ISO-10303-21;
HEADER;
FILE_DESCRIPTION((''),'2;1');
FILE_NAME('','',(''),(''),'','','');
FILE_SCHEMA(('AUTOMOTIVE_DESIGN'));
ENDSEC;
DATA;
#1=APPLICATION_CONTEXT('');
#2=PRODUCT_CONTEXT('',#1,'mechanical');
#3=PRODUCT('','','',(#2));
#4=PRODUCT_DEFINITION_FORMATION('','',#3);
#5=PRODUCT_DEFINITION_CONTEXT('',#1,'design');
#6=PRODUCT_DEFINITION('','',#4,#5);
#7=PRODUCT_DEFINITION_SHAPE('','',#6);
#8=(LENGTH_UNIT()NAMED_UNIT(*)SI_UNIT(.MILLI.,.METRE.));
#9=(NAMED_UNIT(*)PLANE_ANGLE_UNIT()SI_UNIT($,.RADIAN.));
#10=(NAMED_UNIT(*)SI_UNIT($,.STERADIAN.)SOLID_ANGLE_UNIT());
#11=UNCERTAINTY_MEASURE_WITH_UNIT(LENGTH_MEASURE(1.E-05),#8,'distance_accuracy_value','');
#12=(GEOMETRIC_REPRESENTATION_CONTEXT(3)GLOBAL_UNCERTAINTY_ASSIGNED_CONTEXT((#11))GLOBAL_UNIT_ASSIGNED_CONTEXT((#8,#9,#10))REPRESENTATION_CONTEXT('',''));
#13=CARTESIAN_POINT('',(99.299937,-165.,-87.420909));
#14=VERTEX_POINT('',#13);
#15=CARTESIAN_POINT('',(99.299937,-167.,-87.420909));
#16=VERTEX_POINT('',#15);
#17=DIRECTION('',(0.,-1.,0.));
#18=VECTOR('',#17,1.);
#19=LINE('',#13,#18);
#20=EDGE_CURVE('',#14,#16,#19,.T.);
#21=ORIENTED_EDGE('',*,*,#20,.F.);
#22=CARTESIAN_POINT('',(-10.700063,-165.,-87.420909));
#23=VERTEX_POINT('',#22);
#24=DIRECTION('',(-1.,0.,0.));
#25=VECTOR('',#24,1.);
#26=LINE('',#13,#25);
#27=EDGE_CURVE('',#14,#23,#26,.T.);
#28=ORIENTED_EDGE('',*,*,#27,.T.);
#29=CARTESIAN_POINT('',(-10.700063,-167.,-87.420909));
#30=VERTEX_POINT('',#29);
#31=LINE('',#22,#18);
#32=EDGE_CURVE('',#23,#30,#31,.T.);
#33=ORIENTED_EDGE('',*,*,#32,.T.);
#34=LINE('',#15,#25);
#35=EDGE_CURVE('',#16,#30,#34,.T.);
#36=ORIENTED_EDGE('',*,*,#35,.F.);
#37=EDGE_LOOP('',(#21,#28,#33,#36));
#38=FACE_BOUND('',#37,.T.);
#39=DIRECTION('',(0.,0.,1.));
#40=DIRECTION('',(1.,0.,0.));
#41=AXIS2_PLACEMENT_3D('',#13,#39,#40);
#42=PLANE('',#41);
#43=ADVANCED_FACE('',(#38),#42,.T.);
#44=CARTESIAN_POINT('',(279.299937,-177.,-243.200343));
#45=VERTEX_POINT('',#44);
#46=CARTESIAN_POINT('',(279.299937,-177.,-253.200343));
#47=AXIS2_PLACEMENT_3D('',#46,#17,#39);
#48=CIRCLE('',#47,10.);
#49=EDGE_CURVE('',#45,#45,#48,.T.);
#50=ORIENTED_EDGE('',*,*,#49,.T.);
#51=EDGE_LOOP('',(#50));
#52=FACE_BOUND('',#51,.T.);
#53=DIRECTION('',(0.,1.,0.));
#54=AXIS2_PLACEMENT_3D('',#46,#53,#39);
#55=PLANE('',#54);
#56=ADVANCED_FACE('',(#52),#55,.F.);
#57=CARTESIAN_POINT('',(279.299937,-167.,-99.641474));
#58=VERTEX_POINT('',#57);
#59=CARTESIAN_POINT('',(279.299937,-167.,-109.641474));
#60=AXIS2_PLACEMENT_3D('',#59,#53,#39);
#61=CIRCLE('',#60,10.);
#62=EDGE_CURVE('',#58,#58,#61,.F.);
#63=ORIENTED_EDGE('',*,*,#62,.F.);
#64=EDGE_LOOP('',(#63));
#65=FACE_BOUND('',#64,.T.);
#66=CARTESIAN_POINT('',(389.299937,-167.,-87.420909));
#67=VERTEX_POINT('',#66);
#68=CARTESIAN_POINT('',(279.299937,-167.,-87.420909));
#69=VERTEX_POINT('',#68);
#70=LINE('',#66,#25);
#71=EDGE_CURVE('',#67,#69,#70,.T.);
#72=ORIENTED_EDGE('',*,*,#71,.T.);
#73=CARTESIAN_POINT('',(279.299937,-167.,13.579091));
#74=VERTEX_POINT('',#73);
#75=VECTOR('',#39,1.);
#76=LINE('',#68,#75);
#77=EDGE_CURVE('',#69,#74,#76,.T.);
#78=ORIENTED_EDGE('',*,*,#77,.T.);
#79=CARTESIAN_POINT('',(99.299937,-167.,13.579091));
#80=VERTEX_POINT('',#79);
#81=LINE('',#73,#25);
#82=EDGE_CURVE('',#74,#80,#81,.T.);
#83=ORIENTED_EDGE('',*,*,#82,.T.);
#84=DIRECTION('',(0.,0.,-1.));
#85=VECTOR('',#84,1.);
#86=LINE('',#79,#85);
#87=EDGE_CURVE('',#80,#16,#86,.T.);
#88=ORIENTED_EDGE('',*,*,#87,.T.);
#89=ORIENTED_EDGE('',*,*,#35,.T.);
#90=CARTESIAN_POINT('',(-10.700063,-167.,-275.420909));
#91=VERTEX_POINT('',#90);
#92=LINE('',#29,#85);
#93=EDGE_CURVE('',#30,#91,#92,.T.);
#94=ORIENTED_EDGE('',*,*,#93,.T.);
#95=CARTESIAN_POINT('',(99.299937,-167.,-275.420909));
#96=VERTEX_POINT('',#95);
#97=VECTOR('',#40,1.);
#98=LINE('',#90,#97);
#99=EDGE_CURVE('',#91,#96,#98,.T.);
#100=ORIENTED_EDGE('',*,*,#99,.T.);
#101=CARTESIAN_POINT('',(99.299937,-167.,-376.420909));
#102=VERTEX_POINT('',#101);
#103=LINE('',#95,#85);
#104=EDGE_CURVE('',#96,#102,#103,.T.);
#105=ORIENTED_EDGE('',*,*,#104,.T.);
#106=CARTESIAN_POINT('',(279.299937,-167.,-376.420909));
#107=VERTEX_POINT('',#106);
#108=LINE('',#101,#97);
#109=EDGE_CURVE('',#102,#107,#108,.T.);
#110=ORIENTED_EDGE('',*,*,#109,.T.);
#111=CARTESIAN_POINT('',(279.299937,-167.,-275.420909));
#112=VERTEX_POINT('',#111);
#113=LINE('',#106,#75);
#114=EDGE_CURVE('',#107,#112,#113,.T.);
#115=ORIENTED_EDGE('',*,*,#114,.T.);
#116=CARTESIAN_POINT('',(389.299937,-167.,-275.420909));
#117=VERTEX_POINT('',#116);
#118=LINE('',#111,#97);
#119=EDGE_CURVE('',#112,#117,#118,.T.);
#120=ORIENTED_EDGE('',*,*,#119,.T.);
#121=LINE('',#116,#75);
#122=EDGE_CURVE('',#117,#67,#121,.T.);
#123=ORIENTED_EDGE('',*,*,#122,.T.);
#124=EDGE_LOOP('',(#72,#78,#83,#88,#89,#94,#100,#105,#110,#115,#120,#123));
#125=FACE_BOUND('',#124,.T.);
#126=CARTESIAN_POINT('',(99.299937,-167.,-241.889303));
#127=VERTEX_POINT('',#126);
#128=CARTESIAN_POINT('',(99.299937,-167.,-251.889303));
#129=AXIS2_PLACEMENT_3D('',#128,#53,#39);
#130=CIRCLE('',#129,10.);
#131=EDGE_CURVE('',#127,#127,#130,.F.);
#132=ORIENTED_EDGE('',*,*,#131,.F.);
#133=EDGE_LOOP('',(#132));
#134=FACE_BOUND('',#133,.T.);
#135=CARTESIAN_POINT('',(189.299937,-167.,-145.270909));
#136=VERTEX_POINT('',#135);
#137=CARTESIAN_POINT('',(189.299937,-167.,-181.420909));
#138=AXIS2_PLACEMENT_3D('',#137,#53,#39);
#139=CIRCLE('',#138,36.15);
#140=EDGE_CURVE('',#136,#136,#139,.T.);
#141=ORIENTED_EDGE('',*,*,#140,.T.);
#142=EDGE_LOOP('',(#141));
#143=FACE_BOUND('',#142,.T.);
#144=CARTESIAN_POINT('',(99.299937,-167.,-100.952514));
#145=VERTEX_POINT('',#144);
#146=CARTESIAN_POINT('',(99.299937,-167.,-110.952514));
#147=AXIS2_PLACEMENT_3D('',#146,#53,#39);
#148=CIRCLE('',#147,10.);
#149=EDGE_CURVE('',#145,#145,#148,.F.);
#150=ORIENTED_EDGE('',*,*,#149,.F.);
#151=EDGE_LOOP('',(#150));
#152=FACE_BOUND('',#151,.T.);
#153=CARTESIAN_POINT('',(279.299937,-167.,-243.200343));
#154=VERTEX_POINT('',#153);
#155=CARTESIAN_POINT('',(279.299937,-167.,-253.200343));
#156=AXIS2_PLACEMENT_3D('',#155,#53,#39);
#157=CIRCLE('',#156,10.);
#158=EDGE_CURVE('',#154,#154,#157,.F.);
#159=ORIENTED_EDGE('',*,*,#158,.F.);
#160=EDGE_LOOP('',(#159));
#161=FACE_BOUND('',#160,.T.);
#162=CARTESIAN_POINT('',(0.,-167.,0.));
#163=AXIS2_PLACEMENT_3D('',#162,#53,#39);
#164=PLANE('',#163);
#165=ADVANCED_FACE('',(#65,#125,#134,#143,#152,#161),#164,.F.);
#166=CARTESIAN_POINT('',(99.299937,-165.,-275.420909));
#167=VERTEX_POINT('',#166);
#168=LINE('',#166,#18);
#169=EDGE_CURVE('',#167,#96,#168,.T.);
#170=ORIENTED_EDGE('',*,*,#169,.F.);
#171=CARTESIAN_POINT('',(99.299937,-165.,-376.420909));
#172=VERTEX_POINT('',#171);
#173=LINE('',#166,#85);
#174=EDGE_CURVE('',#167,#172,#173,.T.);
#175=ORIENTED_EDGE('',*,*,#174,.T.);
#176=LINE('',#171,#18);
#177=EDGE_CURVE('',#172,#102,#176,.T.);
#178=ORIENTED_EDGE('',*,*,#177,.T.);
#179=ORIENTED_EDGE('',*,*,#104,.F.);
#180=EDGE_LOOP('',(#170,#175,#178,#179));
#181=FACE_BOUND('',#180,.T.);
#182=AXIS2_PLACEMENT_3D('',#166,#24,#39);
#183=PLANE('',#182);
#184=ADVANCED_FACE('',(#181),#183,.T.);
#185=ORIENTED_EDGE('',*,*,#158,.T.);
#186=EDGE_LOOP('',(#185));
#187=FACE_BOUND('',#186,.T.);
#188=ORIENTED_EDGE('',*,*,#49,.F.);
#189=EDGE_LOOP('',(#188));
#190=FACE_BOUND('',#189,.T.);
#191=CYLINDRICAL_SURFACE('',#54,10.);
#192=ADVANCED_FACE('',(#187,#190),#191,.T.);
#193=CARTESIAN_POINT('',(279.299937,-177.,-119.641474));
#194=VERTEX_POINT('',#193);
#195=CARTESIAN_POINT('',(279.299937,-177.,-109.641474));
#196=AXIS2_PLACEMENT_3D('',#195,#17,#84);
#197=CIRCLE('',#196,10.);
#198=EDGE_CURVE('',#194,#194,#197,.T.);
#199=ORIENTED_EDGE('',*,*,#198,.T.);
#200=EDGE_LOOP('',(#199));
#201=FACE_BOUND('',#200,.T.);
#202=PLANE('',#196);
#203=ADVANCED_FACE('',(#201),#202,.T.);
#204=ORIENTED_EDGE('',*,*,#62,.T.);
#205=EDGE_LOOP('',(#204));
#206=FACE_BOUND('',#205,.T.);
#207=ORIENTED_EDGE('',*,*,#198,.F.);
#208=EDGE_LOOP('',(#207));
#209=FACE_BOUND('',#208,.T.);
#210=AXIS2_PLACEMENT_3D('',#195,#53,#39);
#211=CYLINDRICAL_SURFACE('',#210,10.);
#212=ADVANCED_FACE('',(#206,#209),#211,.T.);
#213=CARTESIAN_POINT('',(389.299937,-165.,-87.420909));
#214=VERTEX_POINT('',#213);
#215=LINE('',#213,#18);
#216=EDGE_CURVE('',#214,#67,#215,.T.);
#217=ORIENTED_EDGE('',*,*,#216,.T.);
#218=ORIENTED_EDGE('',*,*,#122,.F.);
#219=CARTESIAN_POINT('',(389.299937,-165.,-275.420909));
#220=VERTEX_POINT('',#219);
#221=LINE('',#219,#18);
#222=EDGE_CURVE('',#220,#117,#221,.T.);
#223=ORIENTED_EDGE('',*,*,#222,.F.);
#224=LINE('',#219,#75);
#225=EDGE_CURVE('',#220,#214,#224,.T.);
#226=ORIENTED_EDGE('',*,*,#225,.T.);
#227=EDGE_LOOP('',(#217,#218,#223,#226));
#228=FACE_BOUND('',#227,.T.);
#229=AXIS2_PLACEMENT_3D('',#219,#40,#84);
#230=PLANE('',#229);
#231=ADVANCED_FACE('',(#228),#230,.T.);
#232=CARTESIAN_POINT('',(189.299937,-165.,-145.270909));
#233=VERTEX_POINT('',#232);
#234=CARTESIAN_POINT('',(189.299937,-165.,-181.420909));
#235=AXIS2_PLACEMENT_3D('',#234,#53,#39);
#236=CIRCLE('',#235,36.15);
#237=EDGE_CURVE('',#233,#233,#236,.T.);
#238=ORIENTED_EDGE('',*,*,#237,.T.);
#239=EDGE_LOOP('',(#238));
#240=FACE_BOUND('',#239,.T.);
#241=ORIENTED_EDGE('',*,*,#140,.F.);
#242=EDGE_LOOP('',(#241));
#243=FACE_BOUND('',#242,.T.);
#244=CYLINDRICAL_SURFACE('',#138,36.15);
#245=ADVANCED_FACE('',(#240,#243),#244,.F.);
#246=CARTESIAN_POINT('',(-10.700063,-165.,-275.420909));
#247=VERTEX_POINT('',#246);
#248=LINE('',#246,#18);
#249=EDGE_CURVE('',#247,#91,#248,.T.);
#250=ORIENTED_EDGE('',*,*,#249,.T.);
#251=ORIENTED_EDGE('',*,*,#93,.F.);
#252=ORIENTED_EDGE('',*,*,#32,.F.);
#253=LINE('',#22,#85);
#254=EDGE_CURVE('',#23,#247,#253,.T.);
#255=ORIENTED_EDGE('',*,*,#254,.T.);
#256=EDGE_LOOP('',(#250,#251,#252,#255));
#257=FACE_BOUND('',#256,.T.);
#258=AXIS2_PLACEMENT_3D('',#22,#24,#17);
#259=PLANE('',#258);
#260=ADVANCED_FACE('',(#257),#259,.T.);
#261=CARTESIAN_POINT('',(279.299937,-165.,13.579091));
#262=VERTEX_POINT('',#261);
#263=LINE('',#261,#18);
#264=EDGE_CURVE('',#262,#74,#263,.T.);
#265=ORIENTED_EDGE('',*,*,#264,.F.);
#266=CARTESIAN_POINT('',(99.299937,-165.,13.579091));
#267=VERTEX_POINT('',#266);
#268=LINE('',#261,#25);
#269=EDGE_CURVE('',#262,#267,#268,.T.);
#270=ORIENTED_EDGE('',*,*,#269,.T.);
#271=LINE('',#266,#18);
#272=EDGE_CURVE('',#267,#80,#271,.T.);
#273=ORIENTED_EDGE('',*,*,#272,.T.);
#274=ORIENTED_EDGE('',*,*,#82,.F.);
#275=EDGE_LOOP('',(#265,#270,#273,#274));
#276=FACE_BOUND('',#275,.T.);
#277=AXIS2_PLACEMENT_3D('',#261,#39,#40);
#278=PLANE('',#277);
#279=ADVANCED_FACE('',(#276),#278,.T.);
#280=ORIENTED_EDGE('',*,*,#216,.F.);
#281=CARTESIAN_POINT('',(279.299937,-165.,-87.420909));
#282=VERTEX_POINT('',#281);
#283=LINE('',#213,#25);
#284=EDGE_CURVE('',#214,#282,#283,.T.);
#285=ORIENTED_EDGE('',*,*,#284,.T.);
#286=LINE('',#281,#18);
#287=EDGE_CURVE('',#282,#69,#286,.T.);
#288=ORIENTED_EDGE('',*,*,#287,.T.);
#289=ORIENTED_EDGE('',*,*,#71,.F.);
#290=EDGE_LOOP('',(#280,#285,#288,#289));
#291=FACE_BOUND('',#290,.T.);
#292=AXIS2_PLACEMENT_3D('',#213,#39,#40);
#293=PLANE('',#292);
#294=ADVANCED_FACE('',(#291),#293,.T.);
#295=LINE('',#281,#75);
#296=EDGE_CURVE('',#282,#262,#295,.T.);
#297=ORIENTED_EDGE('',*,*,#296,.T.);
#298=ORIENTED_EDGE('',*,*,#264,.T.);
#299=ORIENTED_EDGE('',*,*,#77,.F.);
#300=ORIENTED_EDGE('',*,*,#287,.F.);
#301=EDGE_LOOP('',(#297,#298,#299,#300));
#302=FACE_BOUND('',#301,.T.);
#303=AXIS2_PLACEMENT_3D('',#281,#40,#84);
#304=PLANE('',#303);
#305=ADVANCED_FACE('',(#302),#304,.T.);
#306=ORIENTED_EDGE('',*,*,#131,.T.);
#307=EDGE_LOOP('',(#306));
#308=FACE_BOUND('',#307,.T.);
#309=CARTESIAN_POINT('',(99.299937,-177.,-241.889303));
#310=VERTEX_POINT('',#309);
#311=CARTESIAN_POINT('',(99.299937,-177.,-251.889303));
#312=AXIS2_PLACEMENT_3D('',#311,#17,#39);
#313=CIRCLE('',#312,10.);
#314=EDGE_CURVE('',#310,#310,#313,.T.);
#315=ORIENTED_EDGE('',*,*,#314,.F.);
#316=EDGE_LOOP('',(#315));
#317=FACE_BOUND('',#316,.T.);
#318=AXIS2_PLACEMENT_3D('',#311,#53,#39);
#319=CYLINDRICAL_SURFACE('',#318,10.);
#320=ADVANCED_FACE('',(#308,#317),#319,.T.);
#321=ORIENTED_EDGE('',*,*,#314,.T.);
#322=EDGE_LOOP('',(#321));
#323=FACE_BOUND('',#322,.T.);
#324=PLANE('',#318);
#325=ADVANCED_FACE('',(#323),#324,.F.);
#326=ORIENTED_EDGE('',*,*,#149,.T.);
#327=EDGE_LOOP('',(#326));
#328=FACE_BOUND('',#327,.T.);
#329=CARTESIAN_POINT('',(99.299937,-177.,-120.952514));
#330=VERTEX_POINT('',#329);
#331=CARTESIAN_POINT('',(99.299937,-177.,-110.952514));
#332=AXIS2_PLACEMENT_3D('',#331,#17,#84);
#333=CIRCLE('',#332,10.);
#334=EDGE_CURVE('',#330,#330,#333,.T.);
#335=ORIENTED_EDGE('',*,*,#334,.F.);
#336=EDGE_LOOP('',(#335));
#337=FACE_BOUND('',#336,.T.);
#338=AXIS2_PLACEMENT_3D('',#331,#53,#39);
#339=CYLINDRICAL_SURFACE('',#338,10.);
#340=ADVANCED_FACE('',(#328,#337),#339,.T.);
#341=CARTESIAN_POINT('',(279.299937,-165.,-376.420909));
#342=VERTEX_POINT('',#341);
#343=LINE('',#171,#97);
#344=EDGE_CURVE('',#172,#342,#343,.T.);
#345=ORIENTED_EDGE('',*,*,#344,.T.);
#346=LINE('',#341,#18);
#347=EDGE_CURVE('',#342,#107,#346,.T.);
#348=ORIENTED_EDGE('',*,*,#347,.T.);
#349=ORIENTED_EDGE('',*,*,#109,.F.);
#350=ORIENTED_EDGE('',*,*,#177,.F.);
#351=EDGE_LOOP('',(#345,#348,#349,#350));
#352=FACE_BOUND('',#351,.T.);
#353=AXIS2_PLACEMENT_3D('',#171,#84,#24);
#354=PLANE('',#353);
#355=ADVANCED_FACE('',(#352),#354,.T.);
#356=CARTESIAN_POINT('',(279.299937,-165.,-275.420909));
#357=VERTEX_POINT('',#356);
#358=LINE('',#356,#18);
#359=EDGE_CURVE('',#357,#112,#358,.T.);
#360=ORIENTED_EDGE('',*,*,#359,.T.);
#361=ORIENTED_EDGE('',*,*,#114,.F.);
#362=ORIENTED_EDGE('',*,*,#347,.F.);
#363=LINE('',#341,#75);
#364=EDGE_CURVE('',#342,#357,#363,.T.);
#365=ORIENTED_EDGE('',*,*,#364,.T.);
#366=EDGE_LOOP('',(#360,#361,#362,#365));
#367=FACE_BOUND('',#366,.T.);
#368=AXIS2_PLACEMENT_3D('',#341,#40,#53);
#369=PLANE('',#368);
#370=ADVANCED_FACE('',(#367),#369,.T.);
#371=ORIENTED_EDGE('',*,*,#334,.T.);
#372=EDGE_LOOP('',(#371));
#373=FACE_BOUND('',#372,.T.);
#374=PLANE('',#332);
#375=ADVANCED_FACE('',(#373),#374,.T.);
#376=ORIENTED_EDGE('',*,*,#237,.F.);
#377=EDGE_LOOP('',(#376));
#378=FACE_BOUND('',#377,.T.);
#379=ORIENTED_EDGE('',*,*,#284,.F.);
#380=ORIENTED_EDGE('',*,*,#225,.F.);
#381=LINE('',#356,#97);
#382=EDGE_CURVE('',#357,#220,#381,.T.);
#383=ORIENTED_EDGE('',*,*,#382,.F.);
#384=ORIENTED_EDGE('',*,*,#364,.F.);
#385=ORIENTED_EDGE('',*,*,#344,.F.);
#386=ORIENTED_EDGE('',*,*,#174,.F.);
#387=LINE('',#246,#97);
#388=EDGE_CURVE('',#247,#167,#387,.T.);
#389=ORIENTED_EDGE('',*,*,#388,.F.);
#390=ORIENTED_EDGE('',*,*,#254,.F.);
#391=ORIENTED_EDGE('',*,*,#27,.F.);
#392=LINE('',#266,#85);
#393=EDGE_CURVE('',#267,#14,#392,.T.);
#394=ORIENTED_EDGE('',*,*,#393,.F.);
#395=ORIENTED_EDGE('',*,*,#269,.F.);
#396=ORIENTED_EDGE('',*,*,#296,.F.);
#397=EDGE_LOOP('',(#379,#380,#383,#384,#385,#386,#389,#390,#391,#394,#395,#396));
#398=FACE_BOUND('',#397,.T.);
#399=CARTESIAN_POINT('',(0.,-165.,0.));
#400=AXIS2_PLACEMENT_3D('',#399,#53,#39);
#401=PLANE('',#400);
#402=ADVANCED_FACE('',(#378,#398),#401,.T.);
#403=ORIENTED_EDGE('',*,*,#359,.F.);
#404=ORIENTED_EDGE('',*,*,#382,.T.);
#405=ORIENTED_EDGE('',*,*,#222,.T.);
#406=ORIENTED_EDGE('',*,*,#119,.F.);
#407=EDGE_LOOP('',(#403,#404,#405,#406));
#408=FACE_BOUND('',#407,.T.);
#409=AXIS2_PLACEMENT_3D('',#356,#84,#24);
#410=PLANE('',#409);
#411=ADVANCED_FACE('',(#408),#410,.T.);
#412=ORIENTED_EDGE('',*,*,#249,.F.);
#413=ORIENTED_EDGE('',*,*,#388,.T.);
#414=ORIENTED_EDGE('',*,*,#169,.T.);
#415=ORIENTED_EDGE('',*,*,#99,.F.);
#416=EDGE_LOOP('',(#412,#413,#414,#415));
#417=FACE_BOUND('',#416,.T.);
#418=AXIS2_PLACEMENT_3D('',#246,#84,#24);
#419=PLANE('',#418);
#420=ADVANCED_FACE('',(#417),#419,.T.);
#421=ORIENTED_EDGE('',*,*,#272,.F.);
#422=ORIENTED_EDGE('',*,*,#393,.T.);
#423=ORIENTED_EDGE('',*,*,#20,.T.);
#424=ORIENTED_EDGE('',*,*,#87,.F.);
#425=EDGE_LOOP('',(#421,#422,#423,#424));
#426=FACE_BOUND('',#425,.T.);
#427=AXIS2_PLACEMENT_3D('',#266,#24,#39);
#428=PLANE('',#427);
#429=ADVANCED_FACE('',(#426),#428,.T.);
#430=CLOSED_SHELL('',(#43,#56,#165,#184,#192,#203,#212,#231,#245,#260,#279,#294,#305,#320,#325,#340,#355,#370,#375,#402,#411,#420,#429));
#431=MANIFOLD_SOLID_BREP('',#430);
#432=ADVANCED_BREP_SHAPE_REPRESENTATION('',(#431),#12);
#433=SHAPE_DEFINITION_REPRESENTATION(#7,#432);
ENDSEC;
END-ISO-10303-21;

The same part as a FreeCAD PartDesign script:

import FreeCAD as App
import Part
import Sketcher

doc = App.newDocument("Part")
params = doc.addObject("Spreadsheet::Sheet", "Params")
for row, (alias, value) in enumerate([
    ("sketch1_width", "110 mm"),
    ("sketch1_width2", "180 mm"),
    ("sketch1_height", "188 mm"),
    ("sketch1_height2", "101 mm"),
    ("pad1_length", "2 mm"),
    ("sketch2_diameter", "72.3 mm"),
    ("sketch3_diameter", "20 mm"),
    ("pad2_length", "10 mm"),
], start=1):
    params.set(f"A{row}", alias)
    params.set(f"B{row}", "=" + value)
    params.setAlias(f"B{row}", alias)

body = doc.addObject("PartDesign::Body", "Body")

# Sketch on XZ plane
sketch1 = body.newObject("Sketcher::SketchObject", "Sketch")
sketch1.AttachmentSupport = (doc.getObject("XZ_Plane"), [""])
sketch1.MapMode = "FlatFace"
sketch1.AttachmentOffset = App.Placement(App.Vector(0, 0, 167), App.Rotation())
sketch1.addGeometry([
    Part.LineSegment(App.Vector(279, -275, 0), App.Vector(389, -275, 0)),  # 0
    Part.LineSegment(App.Vector(389, -275, 0), App.Vector(389, -87, 0)),  # 1
    Part.LineSegment(App.Vector(389, -87, 0), App.Vector(279, -87, 0)),  # 2
    Part.LineSegment(App.Vector(279, -87, 0), App.Vector(279, 14, 0)),  # 3
    Part.LineSegment(App.Vector(279, 14, 0), App.Vector(99, 14, 0)),  # 4
    Part.LineSegment(App.Vector(99, 14, 0), App.Vector(99, -87, 0)),  # 5
    Part.LineSegment(App.Vector(99, -87, 0), App.Vector(-11, -87, 0)),  # 6
    Part.LineSegment(App.Vector(-11, -87, 0), App.Vector(-11, -275, 0)),  # 7
    Part.LineSegment(App.Vector(-11, -275, 0), App.Vector(99, -275, 0)),  # 8
    Part.LineSegment(App.Vector(99, -275, 0), App.Vector(99, -376, 0)),  # 9
    Part.LineSegment(App.Vector(99, -376, 0), App.Vector(279, -376, 0)),  # 10
    Part.LineSegment(App.Vector(279, -376, 0), App.Vector(279, -275, 0)),  # 11
], False)
sketch1.addConstraint([
    Sketcher.Constraint("Coincident", 0, 2, 1, 1),
    Sketcher.Constraint("Coincident", 1, 2, 2, 1),
    Sketcher.Constraint("Coincident", 2, 2, 3, 1),
    Sketcher.Constraint("Coincident", 3, 2, 4, 1),
    Sketcher.Constraint("Coincident", 4, 2, 5, 1),
    Sketcher.Constraint("Coincident", 5, 2, 6, 1),
    Sketcher.Constraint("Coincident", 6, 2, 7, 1),
    Sketcher.Constraint("Coincident", 7, 2, 8, 1),
    Sketcher.Constraint("Coincident", 8, 2, 9, 1),
    Sketcher.Constraint("Coincident", 9, 2, 10, 1),
    Sketcher.Constraint("Coincident", 10, 2, 11, 1),
    Sketcher.Constraint("Coincident", 11, 2, 0, 1),
    Sketcher.Constraint("Horizontal", 0),
    Sketcher.Constraint("Vertical", 1),
    Sketcher.Constraint("Horizontal", 2),
    Sketcher.Constraint("Vertical", 3),
    Sketcher.Constraint("Horizontal", 4),
    Sketcher.Constraint("Vertical", 5),
    Sketcher.Constraint("Horizontal", 6),
    Sketcher.Constraint("Vertical", 7),
    Sketcher.Constraint("Horizontal", 8),
    Sketcher.Constraint("Vertical", 9),
    Sketcher.Constraint("Horizontal", 10),
    Sketcher.Constraint("Vertical", 11),
    Sketcher.Constraint("Horizontal", 2, 2, 5, 2),
    Sketcher.Constraint("Horizontal", 0, 2, 7, 2),
    Sketcher.Constraint("Vertical", 5, 2, 8, 2),
    Sketcher.Constraint("Vertical", 3, 2, 10, 2),
    Sketcher.Constraint("Equal", 2, 6),
    Sketcher.Constraint("Equal", 5, 9),
    Sketcher.Constraint("DistanceX", 0, 1, 0, 2, 110.0),
    Sketcher.Constraint("DistanceX", 4, 2, 4, 1, 180.0),
    Sketcher.Constraint("DistanceY", 1, 1, 1, 2, 188.0),
    Sketcher.Constraint("DistanceY", 3, 1, 3, 2, 101.0),
    Sketcher.Constraint("DistanceY", 0, 2, -1, 1, 275.420909),
    Sketcher.Constraint("DistanceX", -1, 1, 0, 2, 389.299937),
])
sketch1.setExpression("Constraints[30]", "Params.sketch1_width")
sketch1.setExpression("Constraints[31]", "Params.sketch1_width2")
sketch1.setExpression("Constraints[32]", "Params.sketch1_height")
sketch1.setExpression("Constraints[33]", "Params.sketch1_height2")
pad1 = body.newObject("PartDesign::Pad", "Pad")
pad1.Profile = sketch1
pad1.setExpression("Length", "Params.pad1_length")
pad1.Reversed = True

# Sketch on XZ plane
sketch2 = body.newObject("Sketcher::SketchObject", "Sketch001")
sketch2.AttachmentSupport = (doc.getObject("XZ_Plane"), [""])
sketch2.MapMode = "FlatFace"
sketch2.AttachmentOffset = App.Placement(App.Vector(0, 0, 165), App.Rotation())
sketch2.addGeometry(Part.Circle(App.Vector(189, -181, 0), App.Vector(0, 0, 1), 36), False)
sketch2.addConstraint([
    Sketcher.Constraint("Diameter", 0, 72.3),
    Sketcher.Constraint("DistanceY", 0, 3, -1, 1, 181.420909),
    Sketcher.Constraint("DistanceX", -1, 1, 0, 3, 189.299937),
])
sketch2.setExpression("Constraints[0]", "Params.sketch2_diameter")
pocket1 = body.newObject("PartDesign::Pocket", "Pocket")
pocket1.Profile = sketch2
pocket1.Type = "ThroughAll"
pocket1.Reversed = True

# Sketch on XZ plane
sketch3 = body.newObject("Sketcher::SketchObject", "Sketch002")
sketch3.AttachmentSupport = (doc.getObject("XZ_Plane"), [""])
sketch3.MapMode = "FlatFace"
sketch3.AttachmentOffset = App.Placement(App.Vector(0, 0, 167), App.Rotation())
sketch3.addGeometry([
    Part.Circle(App.Vector(99, -111, 0), App.Vector(0, 0, 1), 10),
    Part.Circle(App.Vector(279, -110, 0), App.Vector(0, 0, 1), 10),
    Part.Circle(App.Vector(279, -253, 0), App.Vector(0, 0, 1), 10),
    Part.Circle(App.Vector(99, -252, 0), App.Vector(0, 0, 1), 10),
], False)
sketch3.addConstraint([
    Sketcher.Constraint("Equal", 0, 1),
    Sketcher.Constraint("Equal", 1, 2),
    Sketcher.Constraint("Equal", 2, 3),
    Sketcher.Constraint("Vertical", 1, 3, 2, 3),
    Sketcher.Constraint("Vertical", 0, 3, 3, 3),
    Sketcher.Constraint("Diameter", 0, 20.0),
    Sketcher.Constraint("DistanceX", 0, 3, 1, 3, 180.0),
    Sketcher.Constraint("DistanceY", 0, 3, 1, 3, 1.31104),
    Sketcher.Constraint("DistanceY", 2, 3, 1, 3, 143.558869),
    Sketcher.Constraint("DistanceY", 3, 3, 0, 3, 140.936789),
    Sketcher.Constraint("DistanceX", -1, 1, 0, 3, 99.299937),
    Sketcher.Constraint("DistanceY", 0, 3, -1, 1, 110.952514),
])
sketch3.setExpression("Constraints[5]", "Params.sketch3_diameter")
pad2 = body.newObject("PartDesign::Pad", "Pad001")
pad2.Profile = sketch3
pad2.setExpression("Length", "Params.pad2_length")

doc.recompute()
